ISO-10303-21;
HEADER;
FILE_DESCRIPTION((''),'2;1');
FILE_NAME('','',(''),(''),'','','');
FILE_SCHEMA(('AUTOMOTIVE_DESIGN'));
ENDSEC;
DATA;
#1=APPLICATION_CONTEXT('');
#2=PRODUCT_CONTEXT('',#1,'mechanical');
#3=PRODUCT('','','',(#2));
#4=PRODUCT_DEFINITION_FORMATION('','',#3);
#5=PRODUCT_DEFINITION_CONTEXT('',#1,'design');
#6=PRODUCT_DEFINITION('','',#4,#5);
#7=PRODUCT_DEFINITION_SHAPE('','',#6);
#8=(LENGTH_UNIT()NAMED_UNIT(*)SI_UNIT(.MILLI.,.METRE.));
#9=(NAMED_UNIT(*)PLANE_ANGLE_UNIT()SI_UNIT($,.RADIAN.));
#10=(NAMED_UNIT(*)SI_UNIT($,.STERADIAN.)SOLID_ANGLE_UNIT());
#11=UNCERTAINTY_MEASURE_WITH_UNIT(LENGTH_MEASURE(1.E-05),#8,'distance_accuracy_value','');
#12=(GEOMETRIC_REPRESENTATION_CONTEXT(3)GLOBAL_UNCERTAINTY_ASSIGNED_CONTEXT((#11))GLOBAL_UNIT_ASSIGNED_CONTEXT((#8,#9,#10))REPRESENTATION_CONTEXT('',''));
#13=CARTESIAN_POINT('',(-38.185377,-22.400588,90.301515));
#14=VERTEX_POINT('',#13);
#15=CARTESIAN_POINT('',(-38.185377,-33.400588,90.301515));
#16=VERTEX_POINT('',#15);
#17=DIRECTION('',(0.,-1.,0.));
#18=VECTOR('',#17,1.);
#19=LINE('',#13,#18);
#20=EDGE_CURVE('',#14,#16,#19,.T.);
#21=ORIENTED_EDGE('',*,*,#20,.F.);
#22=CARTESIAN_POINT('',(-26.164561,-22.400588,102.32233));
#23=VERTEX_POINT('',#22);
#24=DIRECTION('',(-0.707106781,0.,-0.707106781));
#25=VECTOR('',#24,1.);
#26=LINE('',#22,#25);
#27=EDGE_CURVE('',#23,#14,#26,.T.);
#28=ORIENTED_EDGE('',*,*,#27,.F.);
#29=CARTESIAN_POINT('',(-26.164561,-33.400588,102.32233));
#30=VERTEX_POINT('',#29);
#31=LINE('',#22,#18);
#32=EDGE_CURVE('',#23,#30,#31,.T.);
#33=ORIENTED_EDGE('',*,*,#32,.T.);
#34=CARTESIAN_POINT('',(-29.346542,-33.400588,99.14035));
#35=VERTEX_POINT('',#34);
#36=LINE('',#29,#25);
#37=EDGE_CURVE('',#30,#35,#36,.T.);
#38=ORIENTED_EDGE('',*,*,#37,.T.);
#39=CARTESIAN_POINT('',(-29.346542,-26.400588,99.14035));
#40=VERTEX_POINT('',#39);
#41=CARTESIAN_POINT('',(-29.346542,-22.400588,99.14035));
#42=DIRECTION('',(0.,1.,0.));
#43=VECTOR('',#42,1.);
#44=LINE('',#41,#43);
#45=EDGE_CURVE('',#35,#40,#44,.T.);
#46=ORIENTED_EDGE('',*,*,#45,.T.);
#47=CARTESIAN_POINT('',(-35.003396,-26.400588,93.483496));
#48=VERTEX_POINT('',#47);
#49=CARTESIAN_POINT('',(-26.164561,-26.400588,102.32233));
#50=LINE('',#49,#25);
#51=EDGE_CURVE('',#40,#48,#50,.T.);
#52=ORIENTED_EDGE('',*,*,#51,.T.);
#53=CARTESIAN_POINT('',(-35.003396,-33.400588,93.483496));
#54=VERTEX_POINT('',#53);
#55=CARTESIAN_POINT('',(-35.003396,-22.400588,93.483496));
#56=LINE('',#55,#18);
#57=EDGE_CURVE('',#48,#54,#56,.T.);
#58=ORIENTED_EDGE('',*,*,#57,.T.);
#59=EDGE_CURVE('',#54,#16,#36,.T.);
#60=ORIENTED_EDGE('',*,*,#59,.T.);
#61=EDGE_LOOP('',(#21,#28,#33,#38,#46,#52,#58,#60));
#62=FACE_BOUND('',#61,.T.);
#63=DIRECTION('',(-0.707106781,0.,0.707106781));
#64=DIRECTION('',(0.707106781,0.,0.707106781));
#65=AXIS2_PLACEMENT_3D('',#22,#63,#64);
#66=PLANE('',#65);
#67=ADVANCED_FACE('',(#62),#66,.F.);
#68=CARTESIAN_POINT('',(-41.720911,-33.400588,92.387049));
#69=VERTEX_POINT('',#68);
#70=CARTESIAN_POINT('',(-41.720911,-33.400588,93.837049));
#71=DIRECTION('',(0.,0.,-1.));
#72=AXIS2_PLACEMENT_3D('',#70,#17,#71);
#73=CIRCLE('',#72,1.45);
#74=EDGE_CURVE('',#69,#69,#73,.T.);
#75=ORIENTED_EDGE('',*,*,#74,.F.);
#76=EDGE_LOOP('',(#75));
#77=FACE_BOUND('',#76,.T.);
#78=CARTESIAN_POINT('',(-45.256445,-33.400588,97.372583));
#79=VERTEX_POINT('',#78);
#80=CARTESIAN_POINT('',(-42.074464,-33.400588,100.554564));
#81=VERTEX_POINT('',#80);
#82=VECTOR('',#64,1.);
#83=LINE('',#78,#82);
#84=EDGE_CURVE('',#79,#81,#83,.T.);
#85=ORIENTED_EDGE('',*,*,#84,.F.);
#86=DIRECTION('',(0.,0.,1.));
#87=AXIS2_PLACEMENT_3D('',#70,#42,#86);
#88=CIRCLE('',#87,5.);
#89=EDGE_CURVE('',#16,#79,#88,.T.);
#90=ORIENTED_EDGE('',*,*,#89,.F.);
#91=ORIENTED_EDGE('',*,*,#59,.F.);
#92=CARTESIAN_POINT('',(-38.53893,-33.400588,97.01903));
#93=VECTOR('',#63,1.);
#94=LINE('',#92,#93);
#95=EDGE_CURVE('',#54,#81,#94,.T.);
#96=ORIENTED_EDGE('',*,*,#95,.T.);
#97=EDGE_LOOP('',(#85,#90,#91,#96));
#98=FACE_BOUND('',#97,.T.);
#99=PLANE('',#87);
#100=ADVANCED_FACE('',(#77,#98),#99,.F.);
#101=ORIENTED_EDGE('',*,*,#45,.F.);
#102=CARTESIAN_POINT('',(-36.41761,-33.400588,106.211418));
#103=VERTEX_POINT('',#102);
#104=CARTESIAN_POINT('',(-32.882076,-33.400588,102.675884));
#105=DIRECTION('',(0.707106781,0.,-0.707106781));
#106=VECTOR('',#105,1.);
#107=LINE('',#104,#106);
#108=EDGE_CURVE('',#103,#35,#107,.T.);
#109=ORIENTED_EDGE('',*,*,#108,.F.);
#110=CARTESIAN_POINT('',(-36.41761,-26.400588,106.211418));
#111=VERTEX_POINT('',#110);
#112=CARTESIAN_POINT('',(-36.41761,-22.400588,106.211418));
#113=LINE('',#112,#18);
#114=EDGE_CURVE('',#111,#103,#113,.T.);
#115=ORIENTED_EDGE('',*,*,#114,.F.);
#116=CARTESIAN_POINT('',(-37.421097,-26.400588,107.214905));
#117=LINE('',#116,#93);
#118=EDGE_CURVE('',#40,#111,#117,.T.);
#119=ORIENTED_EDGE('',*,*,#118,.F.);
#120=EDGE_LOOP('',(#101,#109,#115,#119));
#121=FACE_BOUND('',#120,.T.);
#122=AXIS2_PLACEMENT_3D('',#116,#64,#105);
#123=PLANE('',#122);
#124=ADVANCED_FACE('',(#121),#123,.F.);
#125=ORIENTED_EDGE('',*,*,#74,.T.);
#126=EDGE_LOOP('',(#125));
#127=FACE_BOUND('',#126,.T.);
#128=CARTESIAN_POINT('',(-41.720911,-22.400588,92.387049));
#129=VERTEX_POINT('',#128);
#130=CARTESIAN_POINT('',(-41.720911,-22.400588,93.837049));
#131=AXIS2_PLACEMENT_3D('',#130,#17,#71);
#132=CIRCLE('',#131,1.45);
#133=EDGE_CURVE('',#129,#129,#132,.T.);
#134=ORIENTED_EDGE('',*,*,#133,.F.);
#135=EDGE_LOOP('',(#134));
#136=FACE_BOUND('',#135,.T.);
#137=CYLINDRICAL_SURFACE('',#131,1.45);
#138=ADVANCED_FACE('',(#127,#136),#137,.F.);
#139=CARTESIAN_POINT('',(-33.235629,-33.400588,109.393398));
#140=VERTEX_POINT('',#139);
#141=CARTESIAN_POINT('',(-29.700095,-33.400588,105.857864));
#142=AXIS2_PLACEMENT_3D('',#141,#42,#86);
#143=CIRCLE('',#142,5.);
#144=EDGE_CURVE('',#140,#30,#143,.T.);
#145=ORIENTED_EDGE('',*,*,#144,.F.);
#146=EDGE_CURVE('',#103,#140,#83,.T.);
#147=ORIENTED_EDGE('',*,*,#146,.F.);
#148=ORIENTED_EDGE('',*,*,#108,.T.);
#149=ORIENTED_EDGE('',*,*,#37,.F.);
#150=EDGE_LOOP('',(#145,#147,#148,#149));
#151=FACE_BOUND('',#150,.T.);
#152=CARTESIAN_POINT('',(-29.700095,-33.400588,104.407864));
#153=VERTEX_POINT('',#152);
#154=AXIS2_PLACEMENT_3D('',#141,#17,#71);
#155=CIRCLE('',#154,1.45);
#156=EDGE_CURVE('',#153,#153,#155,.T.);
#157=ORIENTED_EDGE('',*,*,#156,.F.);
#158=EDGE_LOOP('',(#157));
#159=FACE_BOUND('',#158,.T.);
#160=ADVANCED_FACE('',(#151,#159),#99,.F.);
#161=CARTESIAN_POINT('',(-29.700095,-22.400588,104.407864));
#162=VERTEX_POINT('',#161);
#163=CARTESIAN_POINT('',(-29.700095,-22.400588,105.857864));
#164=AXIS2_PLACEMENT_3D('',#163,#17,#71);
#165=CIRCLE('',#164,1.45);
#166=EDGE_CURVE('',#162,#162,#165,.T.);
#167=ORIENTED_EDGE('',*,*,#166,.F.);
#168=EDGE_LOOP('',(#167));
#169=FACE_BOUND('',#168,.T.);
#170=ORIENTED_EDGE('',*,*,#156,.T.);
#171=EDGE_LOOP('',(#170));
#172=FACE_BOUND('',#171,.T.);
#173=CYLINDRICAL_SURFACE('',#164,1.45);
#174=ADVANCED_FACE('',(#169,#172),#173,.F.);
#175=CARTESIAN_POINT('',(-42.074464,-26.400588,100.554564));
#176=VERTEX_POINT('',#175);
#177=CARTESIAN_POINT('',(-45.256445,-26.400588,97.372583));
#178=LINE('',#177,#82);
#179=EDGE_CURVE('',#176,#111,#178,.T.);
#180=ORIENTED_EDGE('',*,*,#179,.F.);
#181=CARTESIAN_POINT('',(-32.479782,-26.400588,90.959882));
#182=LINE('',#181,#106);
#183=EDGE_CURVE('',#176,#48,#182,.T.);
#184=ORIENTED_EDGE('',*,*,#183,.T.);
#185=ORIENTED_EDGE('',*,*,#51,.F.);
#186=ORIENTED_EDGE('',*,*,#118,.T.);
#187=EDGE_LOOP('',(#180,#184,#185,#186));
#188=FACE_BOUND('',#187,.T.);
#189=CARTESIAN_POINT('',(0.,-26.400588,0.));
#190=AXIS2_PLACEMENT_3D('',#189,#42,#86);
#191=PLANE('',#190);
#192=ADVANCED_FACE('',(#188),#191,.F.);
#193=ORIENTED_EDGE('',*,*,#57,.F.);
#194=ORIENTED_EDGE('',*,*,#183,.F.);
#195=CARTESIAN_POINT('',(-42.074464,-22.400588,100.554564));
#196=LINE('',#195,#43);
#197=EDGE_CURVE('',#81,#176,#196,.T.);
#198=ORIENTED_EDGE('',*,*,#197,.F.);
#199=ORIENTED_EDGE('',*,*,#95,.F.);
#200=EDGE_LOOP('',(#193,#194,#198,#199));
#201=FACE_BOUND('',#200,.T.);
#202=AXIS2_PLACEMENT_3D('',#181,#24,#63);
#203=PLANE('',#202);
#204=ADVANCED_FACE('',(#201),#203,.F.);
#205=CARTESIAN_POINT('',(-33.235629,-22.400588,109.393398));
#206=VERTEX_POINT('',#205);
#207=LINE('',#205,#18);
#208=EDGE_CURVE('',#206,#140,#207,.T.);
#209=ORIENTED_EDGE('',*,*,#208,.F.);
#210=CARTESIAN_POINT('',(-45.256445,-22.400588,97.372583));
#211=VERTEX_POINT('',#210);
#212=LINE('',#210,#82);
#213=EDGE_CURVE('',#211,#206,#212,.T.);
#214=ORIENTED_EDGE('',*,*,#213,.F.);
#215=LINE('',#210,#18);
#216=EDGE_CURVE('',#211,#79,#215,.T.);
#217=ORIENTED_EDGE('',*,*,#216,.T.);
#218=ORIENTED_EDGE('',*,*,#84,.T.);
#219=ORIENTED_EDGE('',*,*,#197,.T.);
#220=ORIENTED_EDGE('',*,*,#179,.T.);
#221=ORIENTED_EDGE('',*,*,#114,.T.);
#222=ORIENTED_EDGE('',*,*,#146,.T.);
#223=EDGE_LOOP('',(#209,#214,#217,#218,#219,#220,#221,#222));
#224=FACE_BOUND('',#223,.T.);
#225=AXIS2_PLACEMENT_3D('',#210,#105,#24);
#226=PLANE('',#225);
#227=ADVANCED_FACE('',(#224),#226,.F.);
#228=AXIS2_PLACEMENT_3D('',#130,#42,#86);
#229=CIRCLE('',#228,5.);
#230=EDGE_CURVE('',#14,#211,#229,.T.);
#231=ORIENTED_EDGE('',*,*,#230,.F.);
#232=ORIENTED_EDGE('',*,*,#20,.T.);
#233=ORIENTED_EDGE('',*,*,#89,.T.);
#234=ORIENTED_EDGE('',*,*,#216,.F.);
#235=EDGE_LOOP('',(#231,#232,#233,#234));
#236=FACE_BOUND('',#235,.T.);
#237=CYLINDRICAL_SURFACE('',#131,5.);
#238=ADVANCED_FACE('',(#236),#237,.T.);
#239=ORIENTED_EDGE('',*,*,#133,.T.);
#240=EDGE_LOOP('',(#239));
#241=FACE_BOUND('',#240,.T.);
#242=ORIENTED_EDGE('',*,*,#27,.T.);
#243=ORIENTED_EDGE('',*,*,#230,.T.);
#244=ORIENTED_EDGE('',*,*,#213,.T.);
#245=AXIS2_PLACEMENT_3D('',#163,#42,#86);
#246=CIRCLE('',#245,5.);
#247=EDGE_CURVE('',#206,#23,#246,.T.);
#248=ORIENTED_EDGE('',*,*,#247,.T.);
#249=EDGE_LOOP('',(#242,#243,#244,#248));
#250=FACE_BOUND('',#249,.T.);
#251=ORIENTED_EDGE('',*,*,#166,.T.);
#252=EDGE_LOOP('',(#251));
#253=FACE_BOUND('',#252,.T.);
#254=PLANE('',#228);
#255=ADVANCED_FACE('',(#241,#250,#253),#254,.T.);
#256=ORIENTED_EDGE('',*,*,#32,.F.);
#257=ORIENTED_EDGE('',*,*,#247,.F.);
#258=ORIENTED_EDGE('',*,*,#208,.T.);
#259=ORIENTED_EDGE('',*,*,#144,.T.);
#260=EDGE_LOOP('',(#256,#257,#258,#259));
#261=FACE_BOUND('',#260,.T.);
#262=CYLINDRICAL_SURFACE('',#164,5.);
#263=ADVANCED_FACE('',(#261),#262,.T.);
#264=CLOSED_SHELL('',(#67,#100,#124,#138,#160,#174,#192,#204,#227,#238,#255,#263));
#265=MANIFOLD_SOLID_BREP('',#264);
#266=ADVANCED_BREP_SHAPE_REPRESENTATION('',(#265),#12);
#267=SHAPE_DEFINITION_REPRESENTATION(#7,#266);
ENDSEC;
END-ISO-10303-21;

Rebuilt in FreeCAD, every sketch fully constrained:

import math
import FreeCAD as App
import Part
import Sketcher

V = App.Vector
Q = App.Units.Quantity


def add_polygon(sketch, points):
    """Adds a closed chain of lines whose ends are joined by coincident constraints."""
    first, n = sketch.GeometryCount, len(points)
    for a, b in zip(points, points[1:] + points[:1]):
        sketch.addGeometry(Part.LineSegment(App.Vector(*a, 0), App.Vector(*b, 0)), False)
    for i in range(n):
        sketch.addConstraint(Sketcher.Constraint("Coincident", first + i, 2, first + (i + 1) % n, 1))

doc = App.newDocument("Part")
body = doc.addObject("PartDesign::Body", "Body")

# Sketch on XZ plane
sketch1 = body.newObject("Sketcher::SketchObject", "Sketch")
sketch1.AttachmentSupport = (doc.getObject("XZ_Plane"), [""])
sketch1.MapMode = "FlatFace"
sketch1.AttachmentOffset = App.Placement(V(0, 0, 33.400588), App.Rotation())
sketch1.addGeometry([
    Part.LineSegment(V(-45.256445, 97.372583, 0), V(-33.235629, 109.393398, 0)),
    Part.ArcOfCircle(Part.Circle(V(-29.700095, 105.857864, 0), V(0, 0, 1), 5), math.radians(-45), math.radians(135)),
    Part.LineSegment(V(-26.164561, 102.32233, 0), V(-38.185377, 90.301515, 0)),
    Part.ArcOfCircle(Part.Circle(V(-41.720911, 93.837049, 0), V(0, 0, 1), 5), math.radians(135), math.radians(315)),
], False)
sketch1.addConstraint([
    Sketcher.Constraint("Tangent", 0, 2, 1, 2),
    Sketcher.Constraint("Tangent", 1, 1, 2, 1),
    Sketcher.Constraint("Tangent", 2, 2, 3, 2),
    Sketcher.Constraint("Tangent", 3, 1, 0, 1),
    Sketcher.Constraint("Equal", 1, 3),
    Sketcher.Constraint("Radius", 1, 5.0),
    Sketcher.Constraint("Angle", 0, Q("45 deg")),
    Sketcher.Constraint("Distance", 0, 17.0),
    Sketcher.Constraint("DistanceY", -1, 1, 0, 2, 109.393398),
    Sketcher.Constraint("DistanceX", 3, 3, -1, 1, 41.720911),
])
pad1 = body.newObject("PartDesign::Pad", "Pad")
pad1.Profile = sketch1
pad1.Length = 11
pad1.Reversed = True

# Sketch on XZ plane
sketch2 = body.newObject("Sketcher::SketchObject", "Sketch001")
sketch2.AttachmentSupport = (doc.getObject("XZ_Plane"), [""])
sketch2.MapMode = "FlatFace"
sketch2.AttachmentOffset = App.Placement(V(0, 0, 33.400588), App.Rotation())
sketch2.addGeometry([
    Part.Circle(V(-41.720911, 93.837049, 0), V(0, 0, 1), 1.45),
    Part.Circle(V(-29.700095, 105.857864, 0), V(0, 0, 1), 1.45),
], False)
sketch2.addConstraint([
    Sketcher.Constraint("Equal", 0, 1),
    Sketcher.Constraint("Diameter", 0, 2.9),
    Sketcher.Constraint("DistanceX", 0, 3, -1, 1, 41.720911),
    Sketcher.Constraint("DistanceY", -1, 1, 0, 3, 93.837049),
    Sketcher.Constraint("DistanceX", 1, 3, -1, 1, 29.700095),
    Sketcher.Constraint("DistanceY", -1, 1, 1, 3, 105.857864),
])
pocket1 = body.newObject("PartDesign::Pocket", "Pocket")
pocket1.Profile = sketch2
pocket1.Length = 11

# Sketch on XZ plane
sketch3 = body.newObject("Sketcher::SketchObject", "Sketch002")
sketch3.AttachmentSupport = (doc.getObject("XZ_Plane"), [""])
sketch3.MapMode = "FlatFace"
sketch3.AttachmentOffset = App.Placement(V(0, 0, 33.400588), App.Rotation())
add_polygon(sketch3, [(-37.421097, 107.214905), (-43.077951, 101.558051), (-32.479782, 90.959882), (-26.822928, 96.616736)])  # lines 0-3
sketch3.addConstraint([
    Sketcher.Constraint("Perpendicular", 0, 1),
    Sketcher.Constraint("Perpendicular", 1, 2),
    Sketcher.Constraint("Perpendicular", 2, 3),
    Sketcher.Constraint("Angle", 0, Q("-135 deg")),
    Sketcher.Constraint("Distance", 0, 8.0),
    Sketcher.Constraint("DistanceX", 0, 2, -1, 1, 43.077951),
    Sketcher.Constraint("DistanceY", -1, 1, 0, 2, 101.558051),
    Sketcher.Constraint("DistanceY", -1, 1, 1, 2, 90.959882),
])
pocket2 = body.newObject("PartDesign::Pocket", "Pocket001")
pocket2.Profile = sketch3
pocket2.Length = 7

doc.recompute()
